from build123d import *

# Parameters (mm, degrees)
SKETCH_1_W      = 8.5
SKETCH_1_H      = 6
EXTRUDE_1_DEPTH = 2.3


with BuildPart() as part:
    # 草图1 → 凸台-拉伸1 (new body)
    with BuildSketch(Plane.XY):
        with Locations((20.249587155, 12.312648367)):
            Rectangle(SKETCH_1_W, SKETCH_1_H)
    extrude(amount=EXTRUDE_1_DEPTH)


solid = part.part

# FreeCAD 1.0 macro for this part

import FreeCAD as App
import Part
import Sketcher
from FreeCAD import Vector
Q = App.Units.Quantity


def add_polygon(sketch, points):
    """Adds a closed chain of lines whose ends are joined by coincident constraints."""
    first, n = sketch.GeometryCount, len(points)
    for a, b in zip(points, points[1:] + points[:1]):
        sketch.addGeometry(Part.LineSegment(App.Vector(*a, 0), App.Vector(*b, 0)), False)
    for i in range(n):
        sketch.addConstraint(Sketcher.Constraint("Coincident", first + i, 2, first + (i + 1) % n, 1))

doc = App.newDocument("Part")
body = doc.addObject("PartDesign::Body", "Body")

sketch1 = doc.addObject("Sketcher::SketchObject", "Sketch")
body.addObject(sketch1)
sketch1.AttachmentSupport = (doc.XY_Plane, [""])
sketch1.MapMode = "FlatFace"
add_polygon(sketch1, [(16, 15), (16, 9), (24, 9), (24, 15)])
sketch1.addConstraint(Sketcher.Constraint("Vertical", 0))
sketch1.addConstraint(Sketcher.Constraint("Horizontal", 1))
sketch1.addConstraint(Sketcher.Constraint("Vertical", 2))
sketch1.addConstraint(Sketcher.Constraint("Horizontal", 3))
sketch1.addConstraint(Sketcher.Constraint("DistanceY", 0, 2, 0, 1, Q("6 mm")))
sketch1.addConstraint(Sketcher.Constraint("DistanceX", 1, 1, 1, 2, Q("8.5 mm")))
sketch1.addConstraint(Sketcher.Constraint("DistanceY", -1, 1, 0, 2, Q("9.312648 mm")))
sketch1.addConstraint(Sketcher.Constraint("DistanceX", -1, 1, 0, 2, Q("15.999587 mm")))
pad1 = doc.addObject("PartDesign::Pad", "Pad")
body.addObject(pad1)
pad1.Profile = sketch1
pad1.Length = 2.3

doc.recompute()
